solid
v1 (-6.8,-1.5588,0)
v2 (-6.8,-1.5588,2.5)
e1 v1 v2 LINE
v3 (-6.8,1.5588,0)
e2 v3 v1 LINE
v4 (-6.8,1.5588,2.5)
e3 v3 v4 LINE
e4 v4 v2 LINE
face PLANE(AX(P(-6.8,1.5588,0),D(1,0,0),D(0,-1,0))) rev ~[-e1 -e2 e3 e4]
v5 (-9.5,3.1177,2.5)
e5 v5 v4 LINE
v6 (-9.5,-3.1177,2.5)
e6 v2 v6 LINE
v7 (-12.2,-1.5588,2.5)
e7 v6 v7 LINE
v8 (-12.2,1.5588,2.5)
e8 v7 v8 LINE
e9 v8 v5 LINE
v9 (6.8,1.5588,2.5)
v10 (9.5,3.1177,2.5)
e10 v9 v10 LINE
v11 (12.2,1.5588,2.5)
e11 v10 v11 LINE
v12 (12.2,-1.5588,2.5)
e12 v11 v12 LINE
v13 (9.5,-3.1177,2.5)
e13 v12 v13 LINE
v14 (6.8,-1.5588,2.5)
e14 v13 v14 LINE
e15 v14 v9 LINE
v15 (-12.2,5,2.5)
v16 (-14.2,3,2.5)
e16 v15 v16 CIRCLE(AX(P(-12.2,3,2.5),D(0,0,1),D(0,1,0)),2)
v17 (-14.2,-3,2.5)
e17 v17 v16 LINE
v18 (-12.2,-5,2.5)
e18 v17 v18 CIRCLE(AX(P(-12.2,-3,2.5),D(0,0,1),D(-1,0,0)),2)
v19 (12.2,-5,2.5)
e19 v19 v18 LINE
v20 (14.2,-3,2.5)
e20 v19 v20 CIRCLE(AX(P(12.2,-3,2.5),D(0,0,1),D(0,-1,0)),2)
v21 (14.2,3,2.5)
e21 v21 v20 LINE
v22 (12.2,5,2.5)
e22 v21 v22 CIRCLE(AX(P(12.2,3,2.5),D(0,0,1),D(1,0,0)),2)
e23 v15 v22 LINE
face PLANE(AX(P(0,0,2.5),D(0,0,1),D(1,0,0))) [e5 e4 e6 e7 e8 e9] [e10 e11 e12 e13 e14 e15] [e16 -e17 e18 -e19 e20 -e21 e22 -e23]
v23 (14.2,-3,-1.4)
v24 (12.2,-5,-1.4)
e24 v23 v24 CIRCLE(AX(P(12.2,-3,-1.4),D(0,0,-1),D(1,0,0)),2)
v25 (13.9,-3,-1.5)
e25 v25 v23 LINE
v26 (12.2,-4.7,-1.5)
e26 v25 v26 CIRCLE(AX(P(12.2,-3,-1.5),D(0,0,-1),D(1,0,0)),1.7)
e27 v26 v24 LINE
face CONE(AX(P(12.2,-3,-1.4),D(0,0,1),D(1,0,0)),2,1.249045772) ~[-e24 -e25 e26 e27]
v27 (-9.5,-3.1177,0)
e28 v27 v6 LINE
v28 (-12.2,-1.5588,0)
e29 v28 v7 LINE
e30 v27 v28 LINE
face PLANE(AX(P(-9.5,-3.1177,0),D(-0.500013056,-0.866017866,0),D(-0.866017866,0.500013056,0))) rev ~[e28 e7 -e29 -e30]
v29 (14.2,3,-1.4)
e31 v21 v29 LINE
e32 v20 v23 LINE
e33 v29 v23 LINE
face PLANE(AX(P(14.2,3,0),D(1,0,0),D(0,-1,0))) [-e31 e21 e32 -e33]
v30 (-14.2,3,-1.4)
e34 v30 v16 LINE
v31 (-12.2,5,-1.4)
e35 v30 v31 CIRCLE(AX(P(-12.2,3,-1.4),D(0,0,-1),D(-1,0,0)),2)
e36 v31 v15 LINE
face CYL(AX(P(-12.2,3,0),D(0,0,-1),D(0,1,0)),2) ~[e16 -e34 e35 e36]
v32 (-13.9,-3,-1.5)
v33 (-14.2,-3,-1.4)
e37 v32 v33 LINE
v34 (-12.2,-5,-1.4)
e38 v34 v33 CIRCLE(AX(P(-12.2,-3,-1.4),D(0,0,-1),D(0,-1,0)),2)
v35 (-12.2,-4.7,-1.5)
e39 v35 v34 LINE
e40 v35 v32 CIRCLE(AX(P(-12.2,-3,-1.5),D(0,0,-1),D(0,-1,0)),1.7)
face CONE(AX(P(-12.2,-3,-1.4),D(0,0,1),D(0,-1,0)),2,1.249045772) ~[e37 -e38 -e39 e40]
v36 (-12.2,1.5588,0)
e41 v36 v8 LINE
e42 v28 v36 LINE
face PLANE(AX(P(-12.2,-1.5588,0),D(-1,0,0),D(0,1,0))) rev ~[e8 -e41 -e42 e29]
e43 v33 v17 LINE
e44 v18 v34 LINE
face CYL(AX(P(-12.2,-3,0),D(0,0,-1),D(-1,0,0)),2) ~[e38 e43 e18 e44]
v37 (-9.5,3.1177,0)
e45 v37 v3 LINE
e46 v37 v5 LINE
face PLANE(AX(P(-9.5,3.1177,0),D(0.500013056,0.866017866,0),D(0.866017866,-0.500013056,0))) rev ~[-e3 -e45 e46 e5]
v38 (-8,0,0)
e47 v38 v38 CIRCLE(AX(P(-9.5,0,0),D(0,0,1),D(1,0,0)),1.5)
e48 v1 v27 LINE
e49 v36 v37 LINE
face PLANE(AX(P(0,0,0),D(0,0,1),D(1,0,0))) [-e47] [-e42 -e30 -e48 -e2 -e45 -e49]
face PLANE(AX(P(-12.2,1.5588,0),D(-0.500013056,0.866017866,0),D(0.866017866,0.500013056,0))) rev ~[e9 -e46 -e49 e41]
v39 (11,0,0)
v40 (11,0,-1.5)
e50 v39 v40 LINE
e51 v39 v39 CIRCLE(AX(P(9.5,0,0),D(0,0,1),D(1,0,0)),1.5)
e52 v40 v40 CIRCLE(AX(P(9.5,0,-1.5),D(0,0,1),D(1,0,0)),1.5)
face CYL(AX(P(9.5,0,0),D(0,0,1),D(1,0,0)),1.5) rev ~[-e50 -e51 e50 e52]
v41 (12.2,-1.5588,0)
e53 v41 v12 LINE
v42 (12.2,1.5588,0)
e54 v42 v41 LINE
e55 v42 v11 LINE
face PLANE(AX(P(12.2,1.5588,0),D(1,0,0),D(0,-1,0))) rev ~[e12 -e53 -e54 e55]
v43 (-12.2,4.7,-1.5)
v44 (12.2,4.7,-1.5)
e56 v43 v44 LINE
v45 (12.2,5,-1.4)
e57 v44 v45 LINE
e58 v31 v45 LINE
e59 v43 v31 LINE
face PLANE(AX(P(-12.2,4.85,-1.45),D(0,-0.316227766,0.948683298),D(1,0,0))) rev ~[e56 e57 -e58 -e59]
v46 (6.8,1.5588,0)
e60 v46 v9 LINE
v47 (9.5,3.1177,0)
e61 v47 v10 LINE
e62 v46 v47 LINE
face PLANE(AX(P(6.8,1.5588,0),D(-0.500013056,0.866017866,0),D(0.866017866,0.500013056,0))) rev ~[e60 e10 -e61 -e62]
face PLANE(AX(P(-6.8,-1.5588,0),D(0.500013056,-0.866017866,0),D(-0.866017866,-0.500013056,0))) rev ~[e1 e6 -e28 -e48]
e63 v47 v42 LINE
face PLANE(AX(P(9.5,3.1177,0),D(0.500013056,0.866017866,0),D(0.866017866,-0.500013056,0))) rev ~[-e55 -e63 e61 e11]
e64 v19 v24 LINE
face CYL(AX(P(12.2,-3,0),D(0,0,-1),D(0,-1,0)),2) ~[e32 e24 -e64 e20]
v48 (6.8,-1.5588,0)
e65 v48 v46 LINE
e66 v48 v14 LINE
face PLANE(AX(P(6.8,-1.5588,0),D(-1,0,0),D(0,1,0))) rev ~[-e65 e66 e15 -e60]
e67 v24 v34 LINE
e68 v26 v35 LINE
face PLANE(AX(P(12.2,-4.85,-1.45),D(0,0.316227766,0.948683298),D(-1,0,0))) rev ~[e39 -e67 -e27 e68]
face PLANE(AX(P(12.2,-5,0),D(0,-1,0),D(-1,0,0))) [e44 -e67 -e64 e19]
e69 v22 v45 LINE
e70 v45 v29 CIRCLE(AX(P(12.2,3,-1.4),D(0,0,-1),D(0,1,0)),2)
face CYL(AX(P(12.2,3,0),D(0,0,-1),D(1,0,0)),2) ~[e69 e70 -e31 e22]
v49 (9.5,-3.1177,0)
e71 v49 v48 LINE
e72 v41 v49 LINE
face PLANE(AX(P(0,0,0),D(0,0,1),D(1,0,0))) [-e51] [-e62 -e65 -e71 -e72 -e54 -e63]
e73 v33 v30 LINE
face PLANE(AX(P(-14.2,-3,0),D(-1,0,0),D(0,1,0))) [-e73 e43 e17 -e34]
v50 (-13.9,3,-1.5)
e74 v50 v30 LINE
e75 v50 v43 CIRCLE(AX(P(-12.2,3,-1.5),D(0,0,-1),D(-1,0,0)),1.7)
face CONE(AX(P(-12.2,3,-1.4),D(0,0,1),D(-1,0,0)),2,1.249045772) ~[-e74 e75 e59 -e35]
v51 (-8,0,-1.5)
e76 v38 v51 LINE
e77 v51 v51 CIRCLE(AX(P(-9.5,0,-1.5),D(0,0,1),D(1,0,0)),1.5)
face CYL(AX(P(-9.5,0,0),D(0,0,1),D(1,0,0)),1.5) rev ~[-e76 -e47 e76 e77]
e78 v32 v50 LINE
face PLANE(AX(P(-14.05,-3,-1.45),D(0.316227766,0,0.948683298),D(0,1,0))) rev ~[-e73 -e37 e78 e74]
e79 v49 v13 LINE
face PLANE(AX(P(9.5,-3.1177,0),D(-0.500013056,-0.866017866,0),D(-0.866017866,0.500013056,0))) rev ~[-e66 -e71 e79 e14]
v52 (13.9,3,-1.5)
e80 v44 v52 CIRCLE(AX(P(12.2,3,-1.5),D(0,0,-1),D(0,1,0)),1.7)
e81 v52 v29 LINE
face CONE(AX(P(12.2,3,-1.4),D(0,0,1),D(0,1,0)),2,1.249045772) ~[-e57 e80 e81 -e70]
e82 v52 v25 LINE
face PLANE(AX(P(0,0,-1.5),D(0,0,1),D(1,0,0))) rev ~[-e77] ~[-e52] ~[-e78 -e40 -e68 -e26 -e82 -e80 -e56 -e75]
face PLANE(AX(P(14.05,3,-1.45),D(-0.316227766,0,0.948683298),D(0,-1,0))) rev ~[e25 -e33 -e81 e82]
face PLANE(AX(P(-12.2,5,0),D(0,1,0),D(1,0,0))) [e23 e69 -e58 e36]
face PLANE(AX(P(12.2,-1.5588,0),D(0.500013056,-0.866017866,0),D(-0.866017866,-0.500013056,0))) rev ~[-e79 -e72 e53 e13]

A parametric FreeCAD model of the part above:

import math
import FreeCAD as App
import Part
import Sketcher

V = App.Vector
Q = App.Units.Quantity


def edges_at(feature, points):
    """Names of the edges that pass closest to the given points."""
    edges = feature.Shape.Edges
    near = lambda p: min(range(len(edges)), key=lambda i: edges[i].distToShape(Part.Vertex(*p))[0])
    return sorted({f"Edge{near(p) + 1}" for p in points})


def add_polygon(sketch, points):
    """Adds a closed chain of lines whose ends are joined by coincident constraints."""
    first, n = sketch.GeometryCount, len(points)
    for a, b in zip(points, points[1:] + points[:1]):
        sketch.addGeometry(Part.LineSegment(App.Vector(*a, 0), App.Vector(*b, 0)), False)
    for i in range(n):
        sketch.addConstraint(Sketcher.Constraint("Coincident", first + i, 2, first + (i + 1) % n, 1))

doc = App.newDocument("Part")
body = doc.addObject("PartDesign::Body", "Body")

sketch1 = body.newObject("Sketcher::SketchObject", "Sketch")
sketch1.AttachmentSupport = (doc.getObject("XY_Plane"), [""])
sketch1.MapMode = "FlatFace"
sketch1.addGeometry([
    Part.LineSegment(V(12.2, 5, 0), V(-12.2, 5, 0)),
    Part.ArcOfCircle(Part.Circle(V(-12.2, 3, 0), V(0, 0, 1), 2), math.radians(90), math.radians(180)),
    Part.LineSegment(V(-14.2, 3, 0), V(-14.2, -3, 0)),
    Part.ArcOfCircle(Part.Circle(V(-12.2, -3, 0), V(0, 0, 1), 2), math.radians(180), math.radians(270)),
    Part.LineSegment(V(-12.2, -5, 0), V(12.2, -5, 0)),
    Part.ArcOfCircle(Part.Circle(V(12.2, -3, 0), V(0, 0, 1), 2), math.radians(-90), math.radians(0)),
    Part.LineSegment(V(14.2, -3, 0), V(14.2, 3, 0)),
    Part.ArcOfCircle(Part.Circle(V(12.2, 3, 0), V(0, 0, 1), 2), math.radians(0), math.radians(90)),
    Part.Circle(V(-9.5, 0, 0), V(0, 0, 1), 1.5),
    Part.Circle(V(9.5, 0, 0), V(0, 0, 1), 1.5),
], False)
sketch1.addConstraint([
    Sketcher.Constraint("Tangent", 0, 2, 1, 1),
    Sketcher.Constraint("Tangent", 1, 2, 2, 1),
    Sketcher.Constraint("Tangent", 2, 2, 3, 1),
    Sketcher.Constraint("Tangent", 3, 2, 4, 1),
    Sketcher.Constraint("Tangent", 4, 2, 5, 1),
    Sketcher.Constraint("Tangent", 5, 2, 6, 1),
    Sketcher.Constraint("Tangent", 6, 2, 7, 1),
    Sketcher.Constraint("Tangent", 7, 2, 0, 1),
    Sketcher.Constraint("Horizontal", 0),
    Sketcher.Constraint("Vertical", 2),
    Sketcher.Constraint("Horizontal", 4),
    Sketcher.Constraint("Vertical", 6),
    Sketcher.Constraint("Equal", 1, 3),
    Sketcher.Constraint("Equal", 3, 5),
    Sketcher.Constraint("Equal", 5, 7),
    Sketcher.Constraint("Equal", 8, 9),
    Sketcher.Constraint("Symmetric", 1, 3, 5, 3, -1, 1),
    Sketcher.Constraint("Symmetric", 8, 3, 9, 3, -1, 1),
    Sketcher.Constraint("PointOnObject", 8, 3, -1),
    Sketcher.Constraint("Radius", 1, Q("2 mm")),
    Sketcher.Constraint("Diameter", 8, Q("3 mm")),
    Sketcher.Constraint("DistanceY", 2, 2, 2, 1, Q("6 mm")),
    Sketcher.Constraint("DistanceX", 0, 2, 0, 1, Q("24.4 mm")),
    Sketcher.Constraint("DistanceX", 8, 3, 9, 3, Q("19 mm")),
])
pad1 = body.newObject("PartDesign::Pad", "Pad")
pad1.Profile = sketch1
pad1.Length = 1.5
pad1.Reversed = True

sketch2 = body.newObject("Sketcher::SketchObject", "Sketch001")
sketch2.AttachmentSupport = (doc.getObject("XY_Plane"), [""])
sketch2.MapMode = "FlatFace"
sketch2.addGeometry(Part.LineSegment(V(12.2, 5, 0), V(-12.2, 5, 0)), False)
sketch2.addGeometry(Part.ArcOfCircle(Part.Circle(V(-12.2, 3, 0), V(0, 0, 1), 2), math.radians(90), math.radians(180)), False)
sketch2.addGeometry(Part.LineSegment(V(-14.2, 3, 0), V(-14.2, -3, 0)), False)
sketch2.addGeometry(Part.ArcOfCircle(Part.Circle(V(-12.2, -3, 0), V(0, 0, 1), 2), math.radians(180), math.radians(270)), False)
sketch2.addGeometry(Part.LineSegment(V(-12.2, -5, 0), V(12.2, -5, 0)), False)
sketch2.addGeometry(Part.ArcOfCircle(Part.Circle(V(12.2, -3, 0), V(0, 0, 1), 2), math.radians(-90), math.radians(0)), False)
sketch2.addGeometry(Part.LineSegment(V(14.2, -3, 0), V(14.2, 3, 0)), False)
sketch2.addGeometry(Part.ArcOfCircle(Part.Circle(V(12.2, 3, 0), V(0, 0, 1), 2), math.radians(0), math.radians(90)), False)
add_polygon(sketch2, [(-6.8, 1.6), (-6.8, -1.6), (-9.5, -3.1), (-12.2, -1.6), (-12.2, 1.6), (-9.5, 3.1)])
add_polygon(sketch2, [(9.5, -3.1), (6.8, -1.6), (6.8, 1.6), (9.5, 3.1), (12.2, 1.6), (12.2, -1.6)])
sketch2.addConstraint([
    Sketcher.Constraint("Tangent", 0, 2, 1, 1),
    Sketcher.Constraint("Tangent", 1, 2, 2, 1),
    Sketcher.Constraint("Tangent", 2, 2, 3, 1),
    Sketcher.Constraint("Tangent", 3, 2, 4, 1),
    Sketcher.Constraint("Tangent", 4, 2, 5, 1),
    Sketcher.Constraint("Tangent", 5, 2, 6, 1),
    Sketcher.Constraint("Tangent", 6, 2, 7, 1),
    Sketcher.Constraint("Tangent", 7, 2, 0, 1),
    Sketcher.Constraint("Horizontal", 0),
    Sketcher.Constraint("Vertical", 2),
    Sketcher.Constraint("Horizontal", 4),
    Sketcher.Constraint("Vertical", 6),
    Sketcher.Constraint("Vertical", 8),
    Sketcher.Constraint("Vertical", 11),
    Sketcher.Constraint("Vertical", 15),
    Sketcher.Constraint("Vertical", 18),
    Sketcher.Constraint("Equal", 1, 3),
    Sketcher.Constraint("Equal", 3, 5),
    Sketcher.Constraint("Equal", 5, 7),
    Sketcher.Constraint("Symmetric", 1, 3, 5, 3, -1, 1),
    Sketcher.Constraint("Symmetric", 13, 2, 14, 2, -1, 1),
    Sketcher.Constraint("Symmetric", 9, 2, 16, 2, -1, 1),
    Sketcher.Constraint("Symmetric", 10, 2, 17, 2, -1, 1),
    Sketcher.Constraint("Symmetric", 12, 2, 19, 2, -1, 1),
    Sketcher.Constraint("Symmetric", 12, 2, 16, 2, -2),
    Sketcher.Constraint("Parallel", 9, 12),
    Sketcher.Constraint("Parallel", 10, 13),
    Sketcher.Constraint("Parallel", 12, 16),
    Sketcher.Constraint("Parallel", 16, 19),
    Sketcher.Constraint("Horizontal", 8, 2, 10, 2),
    Sketcher.Constraint("Horizontal", 11, 2, 13, 2),
    Sketcher.Constraint("Vertical", 3, 2, 10, 2),
    Sketcher.Constraint("Radius", 1, Q("2 mm")),
    Sketcher.Constraint("DistanceY", 3, 2, 0, 2, Q("10 mm")),
    Sketcher.Constraint("Angle", 9, Q("-149.9991 deg")),
    Sketcher.Constraint("DistanceX", 0, 2, 0, 1, Q("24.4 mm")),
    Sketcher.Constraint("DistanceX", 8, 2, -1, 1, Q("6.8 mm")),
    Sketcher.Constraint("DistanceY", 8, 2, 8, 1, Q("3.1176 mm")),
])
pad2 = body.newObject("PartDesign::Pad", "Pad001")
pad2.Profile = sketch2
pad2.Length = 2.5
doc.recompute()

chamfer = body.newObject("PartDesign::Chamfer", "Chamfer")
chamfer.Base = (pad2, edges_at(pad2, [
    (0, 5, -1.5),
    (13.614, 4.414, -1.5),
    (14.2, 0, -1.5),
    (13.614, -4.414, -1.5),
    (0, -5, -1.5),
    (-13.614, -4.414, -1.5),
    (-14.2, 0, -1.5),
    (-13.614, 4.414, -1.5),
]))
chamfer.ChamferType = "Two distances"
chamfer.Size = 0.3
chamfer.Size2 = 0.1

doc.recompute()
